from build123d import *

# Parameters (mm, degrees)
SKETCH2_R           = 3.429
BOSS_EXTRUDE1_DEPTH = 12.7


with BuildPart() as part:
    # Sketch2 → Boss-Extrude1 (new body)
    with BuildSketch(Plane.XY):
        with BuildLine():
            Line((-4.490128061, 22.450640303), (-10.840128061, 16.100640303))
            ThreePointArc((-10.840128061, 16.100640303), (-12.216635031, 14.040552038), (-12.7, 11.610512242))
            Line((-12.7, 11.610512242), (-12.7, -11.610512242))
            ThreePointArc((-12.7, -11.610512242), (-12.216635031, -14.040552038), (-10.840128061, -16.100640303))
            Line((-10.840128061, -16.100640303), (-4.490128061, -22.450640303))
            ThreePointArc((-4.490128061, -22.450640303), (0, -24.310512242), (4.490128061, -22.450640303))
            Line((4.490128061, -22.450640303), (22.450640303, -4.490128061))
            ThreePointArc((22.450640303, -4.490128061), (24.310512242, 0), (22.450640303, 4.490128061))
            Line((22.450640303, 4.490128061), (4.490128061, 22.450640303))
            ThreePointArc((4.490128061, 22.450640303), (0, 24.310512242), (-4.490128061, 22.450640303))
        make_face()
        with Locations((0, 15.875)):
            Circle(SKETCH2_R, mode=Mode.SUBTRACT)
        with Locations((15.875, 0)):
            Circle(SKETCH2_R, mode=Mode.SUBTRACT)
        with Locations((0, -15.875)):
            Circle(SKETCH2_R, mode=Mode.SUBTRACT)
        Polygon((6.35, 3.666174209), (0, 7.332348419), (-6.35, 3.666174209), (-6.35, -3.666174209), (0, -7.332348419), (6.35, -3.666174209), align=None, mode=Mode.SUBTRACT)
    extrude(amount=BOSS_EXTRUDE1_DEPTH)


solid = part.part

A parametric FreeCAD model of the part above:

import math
import FreeCAD as App
import Part
import Sketcher
from FreeCAD import Vector
Q = App.Units.Quantity

doc = App.newDocument("Part")
body = doc.addObject("PartDesign::Body", "Body")

# Sketch on XY plane
sketch1 = doc.addObject("Sketcher::SketchObject", "Sketch")
body.addObject(sketch1)
sketch1.AttachmentSupport = (doc.XY_Plane, [""])
sketch1.MapMode = "FlatFace"
sketch1.addGeometry([
    Part.LineSegment(Vector(-4.5, 22.5, 0), Vector(-10.8, 16.1, 0)),  # 0
    Part.ArcOfCircle(Part.Circle(Vector(-6.3, 11.6, 0), Vector(0, 0, 1), 6.4), math.radians(135), math.radians(180)),  # 1
    Part.LineSegment(Vector(-12.7, 11.6, 0), Vector(-12.7, -11.6, 0)),  # 2
    Part.ArcOfCircle(Part.Circle(Vector(-6.3, -11.6, 0), Vector(0, 0, 1), 6.4), math.radians(-180), math.radians(-135)),  # 3
    Part.LineSegment(Vector(-10.8, -16.1, 0), Vector(-4.5, -22.5, 0)),  # 4
    Part.ArcOfCircle(Part.Circle(Vector(0, -18, 0), Vector(0, 0, 1), 6.4), math.radians(-135), math.radians(-45)),  # 5
    Part.LineSegment(Vector(4.5, -22.5, 0), Vector(22.5, -4.5, 0)),  # 6
    Part.ArcOfCircle(Part.Circle(Vector(18, 0, 0), Vector(0, 0, 1), 6.4), math.radians(-45), math.radians(45)),  # 7
    Part.LineSegment(Vector(22.5, 4.5, 0), Vector(4.5, 22.5, 0)),  # 8
    Part.ArcOfCircle(Part.Circle(Vector(0, 18, 0), Vector(0, 0, 1), 6.4), math.radians(45), math.radians(135)),  # 9
    Part.Circle(Vector(0, -15.9, 0), Vector(0, 0, 1), 3.4),  # 10
    Part.LineSegment(Vector(0, 7.3, 0), Vector(6.3, 3.7, 0)),  # 11
    Part.LineSegment(Vector(6.3, 3.7, 0), Vector(6.3, -3.7, 0)),  # 12
    Part.LineSegment(Vector(6.3, -3.7, 0), Vector(0, -7.3, 0)),  # 13
    Part.LineSegment(Vector(0, -7.3, 0), Vector(-6.3, -3.7, 0)),  # 14
    Part.LineSegment(Vector(-6.3, -3.7, 0), Vector(-6.3, 3.7, 0)),  # 15
    Part.LineSegment(Vector(-6.3, 3.7, 0), Vector(0, 7.3, 0)),  # 16
    Part.Circle(Vector(0, 15.9, 0), Vector(0, 0, 1), 3.4),  # 17
    Part.Circle(Vector(15.9, 0, 0), Vector(0, 0, 1), 3.4),  # 18
], False)
sketch1.addConstraint([
    Sketcher.Constraint("Tangent", 0, 2, 1, 1),
    Sketcher.Constraint("Tangent", 1, 2, 2, 1),
    Sketcher.Constraint("Tangent", 2, 2, 3, 1),
    Sketcher.Constraint("Tangent", 3, 2, 4, 1),
    Sketcher.Constraint("Tangent", 4, 2, 5, 1),
    Sketcher.Constraint("Tangent", 5, 2, 6, 1),
    Sketcher.Constraint("Tangent", 6, 2, 7, 1),
    Sketcher.Constraint("Tangent", 7, 2, 8, 1),
    Sketcher.Constraint("Tangent", 8, 2, 9, 1),
    Sketcher.Constraint("Tangent", 9, 2, 0, 1),
    Sketcher.Constraint("Coincident", 11, 2, 12, 1),
    Sketcher.Constraint("Coincident", 12, 2, 13, 1),
    Sketcher.Constraint("Coincident", 13, 2, 14, 1),
    Sketcher.Constraint("Coincident", 14, 2, 15, 1),
    Sketcher.Constraint("Coincident", 15, 2, 16, 1),
    Sketcher.Constraint("Coincident", 16, 2, 11, 1),
    Sketcher.Constraint("Vertical", 2),
    Sketcher.Constraint("Vertical", 12),
    Sketcher.Constraint("Vertical", 15),
    Sketcher.Constraint("Equal", 1, 3),
    Sketcher.Constraint("Equal", 3, 5),
    Sketcher.Constraint("Equal", 5, 7),
    Sketcher.Constraint("Equal", 7, 9),
    Sketcher.Constraint("Equal", 10, 17),
    Sketcher.Constraint("Equal", 17, 18),
    Sketcher.Constraint("Symmetric", 5, 3, 9, 3, -1, 1),
    Sketcher.Constraint("Symmetric", 10, 3, 17, 3, -1, 1),
    Sketcher.Constraint("Symmetric", 11, 2, 14, 2, -1, 1),
    Sketcher.Constraint("Symmetric", 13, 2, 16, 2, -1, 1),
    Sketcher.Constraint("Symmetric", 4, 2, 5, 2, -2),
    Sketcher.Constraint("PointOnObject", 7, 3, -1),
    Sketcher.Constraint("PointOnObject", 10, 3, -2),
    Sketcher.Constraint("PointOnObject", 18, 3, -1),
    Sketcher.Constraint("PointOnObject", 13, 2, -2),
    Sketcher.Constraint("Perpendicular", 0, 4),
    Sketcher.Constraint("Perpendicular", 4, 6),
    Sketcher.Constraint("Parallel", 13, 16),
    Sketcher.Constraint("Horizontal", 12, 2, 14, 2),
    Sketcher.Constraint("Vertical", 3, 3, 14, 2),
    Sketcher.Constraint("Diameter", 10, Q("0.27 in")),
    Sketcher.Constraint("Radius", 1, Q("0.25 in")),
    Sketcher.Constraint("Distance", 6, Q("1 in")),
    Sketcher.Constraint("Angle", 11, Q("-30 deg")),
    Sketcher.Constraint("DistanceX", 1, 2, -1, 1, Q("0.5 in")),
    Sketcher.Constraint("DistanceY", 10, 3, 17, 3, Q("1.25 in")),
    Sketcher.Constraint("DistanceX", -1, 1, 18, 3, Q("0.625 in")),
    Sketcher.Constraint("DistanceY", 12, 2, 12, 1, 7.332348),
])
pad1 = doc.addObject("PartDesign::Pad", "Pad")
body.addObject(pad1)
pad1.Profile = sketch1
pad1.Length = Q("0.5 in")

doc.recompute()
